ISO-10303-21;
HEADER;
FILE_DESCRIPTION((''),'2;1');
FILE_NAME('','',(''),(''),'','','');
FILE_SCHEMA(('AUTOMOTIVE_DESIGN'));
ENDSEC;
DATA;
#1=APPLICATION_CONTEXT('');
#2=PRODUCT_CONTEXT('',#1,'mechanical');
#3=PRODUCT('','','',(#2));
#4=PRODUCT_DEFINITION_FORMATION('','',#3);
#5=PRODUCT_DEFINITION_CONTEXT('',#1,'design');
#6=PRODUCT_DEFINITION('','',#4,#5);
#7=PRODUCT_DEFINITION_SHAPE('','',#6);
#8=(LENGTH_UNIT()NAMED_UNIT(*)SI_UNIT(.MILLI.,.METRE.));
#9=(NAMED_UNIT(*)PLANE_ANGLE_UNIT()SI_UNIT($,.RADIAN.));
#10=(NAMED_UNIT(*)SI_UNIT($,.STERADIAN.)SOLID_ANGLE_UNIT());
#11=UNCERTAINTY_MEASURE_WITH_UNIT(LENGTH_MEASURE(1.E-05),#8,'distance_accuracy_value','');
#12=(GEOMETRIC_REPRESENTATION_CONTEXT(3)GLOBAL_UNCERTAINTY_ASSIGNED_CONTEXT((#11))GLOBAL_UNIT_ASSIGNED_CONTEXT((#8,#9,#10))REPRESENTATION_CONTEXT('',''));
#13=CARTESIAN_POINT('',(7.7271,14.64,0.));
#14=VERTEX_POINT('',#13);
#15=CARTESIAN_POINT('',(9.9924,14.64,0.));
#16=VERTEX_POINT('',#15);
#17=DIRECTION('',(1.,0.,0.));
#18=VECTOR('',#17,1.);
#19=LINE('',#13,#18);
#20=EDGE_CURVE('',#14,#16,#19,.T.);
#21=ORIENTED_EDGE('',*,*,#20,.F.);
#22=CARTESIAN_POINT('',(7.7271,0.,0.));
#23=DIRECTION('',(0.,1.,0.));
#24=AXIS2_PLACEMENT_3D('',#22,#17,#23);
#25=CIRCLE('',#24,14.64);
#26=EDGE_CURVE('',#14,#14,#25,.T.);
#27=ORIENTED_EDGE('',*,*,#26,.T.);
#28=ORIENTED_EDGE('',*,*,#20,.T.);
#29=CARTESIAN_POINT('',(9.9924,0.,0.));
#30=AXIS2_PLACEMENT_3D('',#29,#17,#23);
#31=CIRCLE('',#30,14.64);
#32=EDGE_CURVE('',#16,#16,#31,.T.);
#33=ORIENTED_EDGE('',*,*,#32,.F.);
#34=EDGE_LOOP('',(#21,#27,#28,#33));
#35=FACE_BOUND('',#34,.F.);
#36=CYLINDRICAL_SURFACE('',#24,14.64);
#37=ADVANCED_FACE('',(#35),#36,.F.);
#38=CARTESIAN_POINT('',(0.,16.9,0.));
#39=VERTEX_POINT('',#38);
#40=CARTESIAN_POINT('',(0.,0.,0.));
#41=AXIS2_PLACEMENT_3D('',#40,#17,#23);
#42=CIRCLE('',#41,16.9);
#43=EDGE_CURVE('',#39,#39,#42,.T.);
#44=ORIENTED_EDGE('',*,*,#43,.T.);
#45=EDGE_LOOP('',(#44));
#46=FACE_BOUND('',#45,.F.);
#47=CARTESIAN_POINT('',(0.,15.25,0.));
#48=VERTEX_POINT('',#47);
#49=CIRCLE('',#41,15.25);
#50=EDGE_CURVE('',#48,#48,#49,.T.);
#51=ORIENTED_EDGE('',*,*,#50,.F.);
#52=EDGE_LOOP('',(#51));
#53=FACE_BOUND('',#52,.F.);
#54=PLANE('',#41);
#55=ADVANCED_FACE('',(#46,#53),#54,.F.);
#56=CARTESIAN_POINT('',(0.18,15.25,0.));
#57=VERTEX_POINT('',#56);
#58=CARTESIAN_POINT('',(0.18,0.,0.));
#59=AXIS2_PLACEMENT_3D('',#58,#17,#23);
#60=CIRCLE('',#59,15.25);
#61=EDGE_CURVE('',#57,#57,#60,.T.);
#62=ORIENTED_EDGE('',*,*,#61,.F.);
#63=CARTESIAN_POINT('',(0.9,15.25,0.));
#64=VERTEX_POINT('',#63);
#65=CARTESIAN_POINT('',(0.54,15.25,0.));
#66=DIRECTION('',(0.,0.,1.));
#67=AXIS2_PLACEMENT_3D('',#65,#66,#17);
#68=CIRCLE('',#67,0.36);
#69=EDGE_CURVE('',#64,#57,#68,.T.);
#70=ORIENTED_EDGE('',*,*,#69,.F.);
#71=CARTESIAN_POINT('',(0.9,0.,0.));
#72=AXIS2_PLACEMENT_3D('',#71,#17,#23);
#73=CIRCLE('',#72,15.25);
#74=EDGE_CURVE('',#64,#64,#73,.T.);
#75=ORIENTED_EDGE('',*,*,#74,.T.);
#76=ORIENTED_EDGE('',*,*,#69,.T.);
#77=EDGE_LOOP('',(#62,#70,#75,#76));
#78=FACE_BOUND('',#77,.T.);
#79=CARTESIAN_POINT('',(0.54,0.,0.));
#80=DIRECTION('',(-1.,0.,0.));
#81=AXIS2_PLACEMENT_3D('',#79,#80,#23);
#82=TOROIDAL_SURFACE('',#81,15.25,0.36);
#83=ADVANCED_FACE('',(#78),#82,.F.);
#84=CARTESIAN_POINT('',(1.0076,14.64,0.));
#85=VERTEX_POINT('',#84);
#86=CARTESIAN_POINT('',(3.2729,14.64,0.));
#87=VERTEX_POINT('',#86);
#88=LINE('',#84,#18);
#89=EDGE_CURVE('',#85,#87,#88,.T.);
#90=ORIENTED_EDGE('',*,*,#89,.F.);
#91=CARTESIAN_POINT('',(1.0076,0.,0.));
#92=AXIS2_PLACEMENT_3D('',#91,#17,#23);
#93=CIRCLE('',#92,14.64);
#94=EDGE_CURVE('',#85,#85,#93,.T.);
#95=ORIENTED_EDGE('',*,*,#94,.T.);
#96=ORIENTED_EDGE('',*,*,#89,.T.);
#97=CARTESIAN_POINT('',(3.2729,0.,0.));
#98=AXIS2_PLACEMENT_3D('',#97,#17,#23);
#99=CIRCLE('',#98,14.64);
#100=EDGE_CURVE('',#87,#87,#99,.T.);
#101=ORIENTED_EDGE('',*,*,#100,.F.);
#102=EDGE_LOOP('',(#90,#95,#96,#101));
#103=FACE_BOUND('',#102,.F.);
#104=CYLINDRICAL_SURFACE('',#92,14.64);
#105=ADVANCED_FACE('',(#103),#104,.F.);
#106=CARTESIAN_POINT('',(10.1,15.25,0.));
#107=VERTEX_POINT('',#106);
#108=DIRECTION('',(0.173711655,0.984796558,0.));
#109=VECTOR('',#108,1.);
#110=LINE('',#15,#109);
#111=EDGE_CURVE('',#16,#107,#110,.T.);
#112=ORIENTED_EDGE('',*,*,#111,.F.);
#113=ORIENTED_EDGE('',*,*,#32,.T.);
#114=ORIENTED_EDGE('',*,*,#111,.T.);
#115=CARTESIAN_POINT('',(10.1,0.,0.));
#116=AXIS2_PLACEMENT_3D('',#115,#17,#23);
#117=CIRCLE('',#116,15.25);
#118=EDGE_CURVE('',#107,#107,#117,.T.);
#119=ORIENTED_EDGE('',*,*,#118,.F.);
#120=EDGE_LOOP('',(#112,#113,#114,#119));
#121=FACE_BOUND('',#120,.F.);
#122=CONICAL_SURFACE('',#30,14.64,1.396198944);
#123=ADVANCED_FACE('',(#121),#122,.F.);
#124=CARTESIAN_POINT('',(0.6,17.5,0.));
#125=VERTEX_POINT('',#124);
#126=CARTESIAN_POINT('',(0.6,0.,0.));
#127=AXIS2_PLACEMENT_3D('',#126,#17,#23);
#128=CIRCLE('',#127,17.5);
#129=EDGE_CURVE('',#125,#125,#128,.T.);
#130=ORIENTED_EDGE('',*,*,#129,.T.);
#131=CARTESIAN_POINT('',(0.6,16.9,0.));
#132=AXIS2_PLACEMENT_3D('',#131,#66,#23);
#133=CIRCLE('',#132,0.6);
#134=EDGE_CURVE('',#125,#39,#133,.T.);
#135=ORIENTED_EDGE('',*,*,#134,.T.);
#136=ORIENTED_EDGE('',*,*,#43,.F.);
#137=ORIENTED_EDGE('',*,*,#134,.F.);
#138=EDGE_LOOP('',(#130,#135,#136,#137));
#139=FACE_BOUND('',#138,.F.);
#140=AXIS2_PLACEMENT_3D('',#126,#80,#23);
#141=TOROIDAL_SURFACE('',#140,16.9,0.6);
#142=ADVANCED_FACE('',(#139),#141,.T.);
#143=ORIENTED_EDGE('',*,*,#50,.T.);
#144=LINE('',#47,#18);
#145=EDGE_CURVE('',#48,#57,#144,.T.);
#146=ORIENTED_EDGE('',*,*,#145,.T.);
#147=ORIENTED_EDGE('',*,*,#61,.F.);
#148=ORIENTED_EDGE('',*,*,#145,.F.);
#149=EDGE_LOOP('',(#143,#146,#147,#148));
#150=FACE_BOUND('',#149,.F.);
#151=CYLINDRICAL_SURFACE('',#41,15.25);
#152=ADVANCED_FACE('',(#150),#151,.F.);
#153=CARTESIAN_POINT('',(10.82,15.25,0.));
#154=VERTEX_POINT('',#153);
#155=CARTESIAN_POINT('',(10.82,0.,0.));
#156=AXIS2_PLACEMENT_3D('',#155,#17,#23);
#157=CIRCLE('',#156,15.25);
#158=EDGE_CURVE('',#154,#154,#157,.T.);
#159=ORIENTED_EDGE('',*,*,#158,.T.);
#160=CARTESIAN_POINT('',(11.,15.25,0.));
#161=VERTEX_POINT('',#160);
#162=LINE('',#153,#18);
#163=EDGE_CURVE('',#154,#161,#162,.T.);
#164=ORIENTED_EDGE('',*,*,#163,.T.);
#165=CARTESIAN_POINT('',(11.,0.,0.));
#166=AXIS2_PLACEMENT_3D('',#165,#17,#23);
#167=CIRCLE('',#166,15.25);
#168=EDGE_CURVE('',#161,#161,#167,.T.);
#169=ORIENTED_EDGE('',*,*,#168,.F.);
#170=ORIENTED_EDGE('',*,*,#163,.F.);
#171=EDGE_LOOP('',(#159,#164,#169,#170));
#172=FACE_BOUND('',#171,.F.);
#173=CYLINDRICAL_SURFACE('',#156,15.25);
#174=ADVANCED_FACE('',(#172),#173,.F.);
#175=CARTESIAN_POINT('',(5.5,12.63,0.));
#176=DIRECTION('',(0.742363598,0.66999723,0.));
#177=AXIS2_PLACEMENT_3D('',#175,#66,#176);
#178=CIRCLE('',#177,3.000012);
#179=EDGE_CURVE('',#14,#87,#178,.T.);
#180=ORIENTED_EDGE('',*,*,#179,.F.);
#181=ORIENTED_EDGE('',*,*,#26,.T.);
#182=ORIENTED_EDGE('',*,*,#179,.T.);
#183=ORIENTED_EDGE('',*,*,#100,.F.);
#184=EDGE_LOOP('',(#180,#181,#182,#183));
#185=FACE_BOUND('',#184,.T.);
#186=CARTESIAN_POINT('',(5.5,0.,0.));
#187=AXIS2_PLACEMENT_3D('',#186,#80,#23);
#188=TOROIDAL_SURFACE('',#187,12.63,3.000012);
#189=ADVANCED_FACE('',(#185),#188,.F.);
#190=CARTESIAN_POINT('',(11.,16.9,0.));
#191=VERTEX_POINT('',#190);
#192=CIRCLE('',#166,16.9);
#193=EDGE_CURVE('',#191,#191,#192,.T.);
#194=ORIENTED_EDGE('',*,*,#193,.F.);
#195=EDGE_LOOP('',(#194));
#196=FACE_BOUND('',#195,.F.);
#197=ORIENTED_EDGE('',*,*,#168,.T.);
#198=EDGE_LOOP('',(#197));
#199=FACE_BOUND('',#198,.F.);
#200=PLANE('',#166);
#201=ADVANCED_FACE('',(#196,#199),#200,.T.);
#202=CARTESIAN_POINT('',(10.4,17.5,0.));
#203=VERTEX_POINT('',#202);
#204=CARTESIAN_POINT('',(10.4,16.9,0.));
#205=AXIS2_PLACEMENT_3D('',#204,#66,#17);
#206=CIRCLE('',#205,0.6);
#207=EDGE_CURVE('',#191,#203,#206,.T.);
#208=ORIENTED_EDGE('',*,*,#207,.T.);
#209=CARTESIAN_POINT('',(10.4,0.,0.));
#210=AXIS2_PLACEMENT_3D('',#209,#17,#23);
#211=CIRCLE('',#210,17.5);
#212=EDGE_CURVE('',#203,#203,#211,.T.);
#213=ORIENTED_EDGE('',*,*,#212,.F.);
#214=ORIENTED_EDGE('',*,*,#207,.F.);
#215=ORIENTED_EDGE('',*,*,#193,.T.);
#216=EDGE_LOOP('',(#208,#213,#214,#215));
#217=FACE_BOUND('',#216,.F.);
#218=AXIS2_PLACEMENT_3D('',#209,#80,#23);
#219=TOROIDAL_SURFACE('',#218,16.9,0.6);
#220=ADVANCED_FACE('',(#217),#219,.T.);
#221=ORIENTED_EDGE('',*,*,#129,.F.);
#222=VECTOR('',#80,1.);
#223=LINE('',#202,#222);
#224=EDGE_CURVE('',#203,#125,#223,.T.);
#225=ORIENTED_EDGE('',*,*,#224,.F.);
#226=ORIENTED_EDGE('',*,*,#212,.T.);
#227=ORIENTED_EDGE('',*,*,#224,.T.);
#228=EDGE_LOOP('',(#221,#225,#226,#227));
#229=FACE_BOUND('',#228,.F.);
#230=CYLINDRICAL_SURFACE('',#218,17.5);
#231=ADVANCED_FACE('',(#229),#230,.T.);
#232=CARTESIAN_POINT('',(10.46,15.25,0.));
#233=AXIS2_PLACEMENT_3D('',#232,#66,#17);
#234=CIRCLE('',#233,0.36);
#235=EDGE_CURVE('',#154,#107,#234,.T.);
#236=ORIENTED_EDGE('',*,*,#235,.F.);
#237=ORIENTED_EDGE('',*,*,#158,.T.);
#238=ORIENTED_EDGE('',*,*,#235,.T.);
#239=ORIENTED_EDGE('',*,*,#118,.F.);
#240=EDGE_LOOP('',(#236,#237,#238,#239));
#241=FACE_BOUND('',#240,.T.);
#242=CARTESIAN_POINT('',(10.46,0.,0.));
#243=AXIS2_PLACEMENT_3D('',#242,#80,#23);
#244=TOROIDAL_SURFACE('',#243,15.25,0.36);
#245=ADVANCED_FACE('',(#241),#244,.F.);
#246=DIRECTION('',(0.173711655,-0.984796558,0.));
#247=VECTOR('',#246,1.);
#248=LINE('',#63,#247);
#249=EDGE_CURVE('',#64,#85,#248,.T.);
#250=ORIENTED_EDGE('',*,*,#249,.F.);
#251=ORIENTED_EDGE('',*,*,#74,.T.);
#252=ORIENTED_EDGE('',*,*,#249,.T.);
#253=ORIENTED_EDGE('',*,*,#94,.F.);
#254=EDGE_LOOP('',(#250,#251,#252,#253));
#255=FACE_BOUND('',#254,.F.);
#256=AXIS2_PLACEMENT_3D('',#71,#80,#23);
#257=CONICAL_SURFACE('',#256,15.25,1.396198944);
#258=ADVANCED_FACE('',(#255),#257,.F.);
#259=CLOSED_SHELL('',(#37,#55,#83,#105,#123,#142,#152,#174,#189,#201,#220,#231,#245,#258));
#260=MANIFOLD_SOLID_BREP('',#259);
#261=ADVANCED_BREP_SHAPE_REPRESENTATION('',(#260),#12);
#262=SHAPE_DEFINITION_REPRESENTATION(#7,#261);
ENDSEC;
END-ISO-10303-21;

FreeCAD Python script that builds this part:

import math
import FreeCAD as App
import Part
import Sketcher

V = App.Vector

doc = App.newDocument("Part")
body = doc.addObject("PartDesign::Body", "Body")

# Sketch on XY plane
sketch1 = body.newObject("Sketcher::SketchObject", "Sketch")
sketch1.AttachmentSupport = (doc.getObject("XY_Plane"), [""])
sketch1.MapMode = "FlatFace"
sketch1.addGeometry([
    Part.LineSegment(V(0, 16.9, 0), V(0, 15.25, 0)),  # 0
    Part.LineSegment(V(0, 15.25, 0), V(0.18, 15.25, 0)),  # 1
    Part.ArcOfCircle(Part.Circle(V(0.54, 15.25, 0), V(0, 0, 1), 0.36), math.radians(0), math.radians(180)),  # 2
    Part.LineSegment(V(0.9, 15.25, 0), V(1.01, 14.64, 0)),  # 3
    Part.LineSegment(V(1.01, 14.64, 0), V(3.27, 14.64, 0)),  # 4
    Part.ArcOfCircle(Part.Circle(V(5.5, 12.63, 0), V(0, 0, 1), 3), math.radians(42), math.radians(138)),  # 5
    Part.LineSegment(V(7.73, 14.64, 0), V(9.99, 14.64, 0)),  # 6
    Part.LineSegment(V(9.99, 14.64, 0), V(10.1, 15.25, 0)),  # 7
    Part.ArcOfCircle(Part.Circle(V(10.46, 15.25, 0), V(0, 0, 1), 0.36), math.radians(0), math.radians(180)),  # 8
    Part.LineSegment(V(10.82, 15.25, 0), V(11, 15.25, 0)),  # 9
    Part.LineSegment(V(11, 15.25, 0), V(11, 16.9, 0)),  # 10
    Part.ArcOfCircle(Part.Circle(V(10.4, 16.9, 0), V(0, 0, 1), 0.6), math.radians(0), math.radians(90)),  # 11
    Part.LineSegment(V(10.4, 17.5, 0), V(0.6, 17.5, 0)),  # 12
    Part.ArcOfCircle(Part.Circle(V(0.6, 16.9, 0), V(0, 0, 1), 0.6), math.radians(90), math.radians(180)),  # 13
], False)
sketch1.addConstraint([
    Sketcher.Constraint("Coincident", 0, 2, 1, 1),
    Sketcher.Constraint("Coincident", 1, 2, 2, 2),
    Sketcher.Constraint("Coincident", 2, 1, 3, 1),
    Sketcher.Constraint("Coincident", 3, 2, 4, 1),
    Sketcher.Constraint("Coincident", 4, 2, 5, 2),
    Sketcher.Constraint("Coincident", 5, 1, 6, 1),
    Sketcher.Constraint("Coincident", 6, 2, 7, 1),
    Sketcher.Constraint("Coincident", 7, 2, 8, 2),
    Sketcher.Constraint("Coincident", 8, 1, 9, 1),
    Sketcher.Constraint("Coincident", 9, 2, 10, 1),
    Sketcher.Constraint("Tangent", 10, 2, 11, 1),
    Sketcher.Constraint("Tangent", 11, 2, 12, 1),
    Sketcher.Constraint("Tangent", 12, 2, 13, 1),
    Sketcher.Constraint("Tangent", 13, 2, 0, 1),
    Sketcher.Constraint("Vertical", 0),
    Sketcher.Constraint("Horizontal", 1),
    Sketcher.Constraint("Horizontal", 4),
    Sketcher.Constraint("Horizontal", 6),
    Sketcher.Constraint("Horizontal", 9),
    Sketcher.Constraint("Vertical", 10),
    Sketcher.Constraint("Horizontal", 12),
    Sketcher.Constraint("Equal", 2, 8),
    Sketcher.Constraint("Equal", 11, 13),
    Sketcher.Constraint("PointOnObject", 0, 2, -2),
    Sketcher.Constraint("Horizontal", 2, 3, 8, 3),
    Sketcher.Constraint("Horizontal", 8, 3, 0, 2),
    Sketcher.Constraint("Horizontal", 1, 2, 2, 1),
    Sketcher.Constraint("Horizontal", 4, 2, 5, 1),
    Sketcher.Constraint("Horizontal", 2, 1, 7, 2),
    Sketcher.Constraint("Horizontal", 7, 2, 8, 1),
    Sketcher.Constraint("Equal", 4, 6),
    Sketcher.Constraint("Equal", 1, 9),
    Sketcher.Constraint("Equal", 3, 7),
    Sketcher.Constraint("Radius", 5, 3.0),
    Sketcher.Constraint("Radius", 11, 0.6),
    Sketcher.Constraint("Radius", 2, 0.36),
    Sketcher.Constraint("DistanceX", 12, 2, 12, 1, 9.8),
    Sketcher.Constraint("DistanceX", 1, 1, 1, 2, 0.18),
    Sketcher.Constraint("DistanceY", 0, 2, 0, 1, 1.65),
    Sketcher.Constraint("DistanceY", -1, 1, 11, 3, 16.9),
    Sketcher.Constraint("DistanceY", -1, 1, 5, 3, 12.63),
    Sketcher.Constraint("DistanceY", -1, 1, 3, 2, 14.64),
    Sketcher.Constraint("DistanceX", 4, 1, 4, 2, 2.2653),
])
revolution = body.newObject("PartDesign::Revolution", "Revolution")
revolution.Profile = sketch1
revolution.ReferenceAxis = (sketch1, ["H_Axis"])
revolution.Angle = 360

doc.recompute()
